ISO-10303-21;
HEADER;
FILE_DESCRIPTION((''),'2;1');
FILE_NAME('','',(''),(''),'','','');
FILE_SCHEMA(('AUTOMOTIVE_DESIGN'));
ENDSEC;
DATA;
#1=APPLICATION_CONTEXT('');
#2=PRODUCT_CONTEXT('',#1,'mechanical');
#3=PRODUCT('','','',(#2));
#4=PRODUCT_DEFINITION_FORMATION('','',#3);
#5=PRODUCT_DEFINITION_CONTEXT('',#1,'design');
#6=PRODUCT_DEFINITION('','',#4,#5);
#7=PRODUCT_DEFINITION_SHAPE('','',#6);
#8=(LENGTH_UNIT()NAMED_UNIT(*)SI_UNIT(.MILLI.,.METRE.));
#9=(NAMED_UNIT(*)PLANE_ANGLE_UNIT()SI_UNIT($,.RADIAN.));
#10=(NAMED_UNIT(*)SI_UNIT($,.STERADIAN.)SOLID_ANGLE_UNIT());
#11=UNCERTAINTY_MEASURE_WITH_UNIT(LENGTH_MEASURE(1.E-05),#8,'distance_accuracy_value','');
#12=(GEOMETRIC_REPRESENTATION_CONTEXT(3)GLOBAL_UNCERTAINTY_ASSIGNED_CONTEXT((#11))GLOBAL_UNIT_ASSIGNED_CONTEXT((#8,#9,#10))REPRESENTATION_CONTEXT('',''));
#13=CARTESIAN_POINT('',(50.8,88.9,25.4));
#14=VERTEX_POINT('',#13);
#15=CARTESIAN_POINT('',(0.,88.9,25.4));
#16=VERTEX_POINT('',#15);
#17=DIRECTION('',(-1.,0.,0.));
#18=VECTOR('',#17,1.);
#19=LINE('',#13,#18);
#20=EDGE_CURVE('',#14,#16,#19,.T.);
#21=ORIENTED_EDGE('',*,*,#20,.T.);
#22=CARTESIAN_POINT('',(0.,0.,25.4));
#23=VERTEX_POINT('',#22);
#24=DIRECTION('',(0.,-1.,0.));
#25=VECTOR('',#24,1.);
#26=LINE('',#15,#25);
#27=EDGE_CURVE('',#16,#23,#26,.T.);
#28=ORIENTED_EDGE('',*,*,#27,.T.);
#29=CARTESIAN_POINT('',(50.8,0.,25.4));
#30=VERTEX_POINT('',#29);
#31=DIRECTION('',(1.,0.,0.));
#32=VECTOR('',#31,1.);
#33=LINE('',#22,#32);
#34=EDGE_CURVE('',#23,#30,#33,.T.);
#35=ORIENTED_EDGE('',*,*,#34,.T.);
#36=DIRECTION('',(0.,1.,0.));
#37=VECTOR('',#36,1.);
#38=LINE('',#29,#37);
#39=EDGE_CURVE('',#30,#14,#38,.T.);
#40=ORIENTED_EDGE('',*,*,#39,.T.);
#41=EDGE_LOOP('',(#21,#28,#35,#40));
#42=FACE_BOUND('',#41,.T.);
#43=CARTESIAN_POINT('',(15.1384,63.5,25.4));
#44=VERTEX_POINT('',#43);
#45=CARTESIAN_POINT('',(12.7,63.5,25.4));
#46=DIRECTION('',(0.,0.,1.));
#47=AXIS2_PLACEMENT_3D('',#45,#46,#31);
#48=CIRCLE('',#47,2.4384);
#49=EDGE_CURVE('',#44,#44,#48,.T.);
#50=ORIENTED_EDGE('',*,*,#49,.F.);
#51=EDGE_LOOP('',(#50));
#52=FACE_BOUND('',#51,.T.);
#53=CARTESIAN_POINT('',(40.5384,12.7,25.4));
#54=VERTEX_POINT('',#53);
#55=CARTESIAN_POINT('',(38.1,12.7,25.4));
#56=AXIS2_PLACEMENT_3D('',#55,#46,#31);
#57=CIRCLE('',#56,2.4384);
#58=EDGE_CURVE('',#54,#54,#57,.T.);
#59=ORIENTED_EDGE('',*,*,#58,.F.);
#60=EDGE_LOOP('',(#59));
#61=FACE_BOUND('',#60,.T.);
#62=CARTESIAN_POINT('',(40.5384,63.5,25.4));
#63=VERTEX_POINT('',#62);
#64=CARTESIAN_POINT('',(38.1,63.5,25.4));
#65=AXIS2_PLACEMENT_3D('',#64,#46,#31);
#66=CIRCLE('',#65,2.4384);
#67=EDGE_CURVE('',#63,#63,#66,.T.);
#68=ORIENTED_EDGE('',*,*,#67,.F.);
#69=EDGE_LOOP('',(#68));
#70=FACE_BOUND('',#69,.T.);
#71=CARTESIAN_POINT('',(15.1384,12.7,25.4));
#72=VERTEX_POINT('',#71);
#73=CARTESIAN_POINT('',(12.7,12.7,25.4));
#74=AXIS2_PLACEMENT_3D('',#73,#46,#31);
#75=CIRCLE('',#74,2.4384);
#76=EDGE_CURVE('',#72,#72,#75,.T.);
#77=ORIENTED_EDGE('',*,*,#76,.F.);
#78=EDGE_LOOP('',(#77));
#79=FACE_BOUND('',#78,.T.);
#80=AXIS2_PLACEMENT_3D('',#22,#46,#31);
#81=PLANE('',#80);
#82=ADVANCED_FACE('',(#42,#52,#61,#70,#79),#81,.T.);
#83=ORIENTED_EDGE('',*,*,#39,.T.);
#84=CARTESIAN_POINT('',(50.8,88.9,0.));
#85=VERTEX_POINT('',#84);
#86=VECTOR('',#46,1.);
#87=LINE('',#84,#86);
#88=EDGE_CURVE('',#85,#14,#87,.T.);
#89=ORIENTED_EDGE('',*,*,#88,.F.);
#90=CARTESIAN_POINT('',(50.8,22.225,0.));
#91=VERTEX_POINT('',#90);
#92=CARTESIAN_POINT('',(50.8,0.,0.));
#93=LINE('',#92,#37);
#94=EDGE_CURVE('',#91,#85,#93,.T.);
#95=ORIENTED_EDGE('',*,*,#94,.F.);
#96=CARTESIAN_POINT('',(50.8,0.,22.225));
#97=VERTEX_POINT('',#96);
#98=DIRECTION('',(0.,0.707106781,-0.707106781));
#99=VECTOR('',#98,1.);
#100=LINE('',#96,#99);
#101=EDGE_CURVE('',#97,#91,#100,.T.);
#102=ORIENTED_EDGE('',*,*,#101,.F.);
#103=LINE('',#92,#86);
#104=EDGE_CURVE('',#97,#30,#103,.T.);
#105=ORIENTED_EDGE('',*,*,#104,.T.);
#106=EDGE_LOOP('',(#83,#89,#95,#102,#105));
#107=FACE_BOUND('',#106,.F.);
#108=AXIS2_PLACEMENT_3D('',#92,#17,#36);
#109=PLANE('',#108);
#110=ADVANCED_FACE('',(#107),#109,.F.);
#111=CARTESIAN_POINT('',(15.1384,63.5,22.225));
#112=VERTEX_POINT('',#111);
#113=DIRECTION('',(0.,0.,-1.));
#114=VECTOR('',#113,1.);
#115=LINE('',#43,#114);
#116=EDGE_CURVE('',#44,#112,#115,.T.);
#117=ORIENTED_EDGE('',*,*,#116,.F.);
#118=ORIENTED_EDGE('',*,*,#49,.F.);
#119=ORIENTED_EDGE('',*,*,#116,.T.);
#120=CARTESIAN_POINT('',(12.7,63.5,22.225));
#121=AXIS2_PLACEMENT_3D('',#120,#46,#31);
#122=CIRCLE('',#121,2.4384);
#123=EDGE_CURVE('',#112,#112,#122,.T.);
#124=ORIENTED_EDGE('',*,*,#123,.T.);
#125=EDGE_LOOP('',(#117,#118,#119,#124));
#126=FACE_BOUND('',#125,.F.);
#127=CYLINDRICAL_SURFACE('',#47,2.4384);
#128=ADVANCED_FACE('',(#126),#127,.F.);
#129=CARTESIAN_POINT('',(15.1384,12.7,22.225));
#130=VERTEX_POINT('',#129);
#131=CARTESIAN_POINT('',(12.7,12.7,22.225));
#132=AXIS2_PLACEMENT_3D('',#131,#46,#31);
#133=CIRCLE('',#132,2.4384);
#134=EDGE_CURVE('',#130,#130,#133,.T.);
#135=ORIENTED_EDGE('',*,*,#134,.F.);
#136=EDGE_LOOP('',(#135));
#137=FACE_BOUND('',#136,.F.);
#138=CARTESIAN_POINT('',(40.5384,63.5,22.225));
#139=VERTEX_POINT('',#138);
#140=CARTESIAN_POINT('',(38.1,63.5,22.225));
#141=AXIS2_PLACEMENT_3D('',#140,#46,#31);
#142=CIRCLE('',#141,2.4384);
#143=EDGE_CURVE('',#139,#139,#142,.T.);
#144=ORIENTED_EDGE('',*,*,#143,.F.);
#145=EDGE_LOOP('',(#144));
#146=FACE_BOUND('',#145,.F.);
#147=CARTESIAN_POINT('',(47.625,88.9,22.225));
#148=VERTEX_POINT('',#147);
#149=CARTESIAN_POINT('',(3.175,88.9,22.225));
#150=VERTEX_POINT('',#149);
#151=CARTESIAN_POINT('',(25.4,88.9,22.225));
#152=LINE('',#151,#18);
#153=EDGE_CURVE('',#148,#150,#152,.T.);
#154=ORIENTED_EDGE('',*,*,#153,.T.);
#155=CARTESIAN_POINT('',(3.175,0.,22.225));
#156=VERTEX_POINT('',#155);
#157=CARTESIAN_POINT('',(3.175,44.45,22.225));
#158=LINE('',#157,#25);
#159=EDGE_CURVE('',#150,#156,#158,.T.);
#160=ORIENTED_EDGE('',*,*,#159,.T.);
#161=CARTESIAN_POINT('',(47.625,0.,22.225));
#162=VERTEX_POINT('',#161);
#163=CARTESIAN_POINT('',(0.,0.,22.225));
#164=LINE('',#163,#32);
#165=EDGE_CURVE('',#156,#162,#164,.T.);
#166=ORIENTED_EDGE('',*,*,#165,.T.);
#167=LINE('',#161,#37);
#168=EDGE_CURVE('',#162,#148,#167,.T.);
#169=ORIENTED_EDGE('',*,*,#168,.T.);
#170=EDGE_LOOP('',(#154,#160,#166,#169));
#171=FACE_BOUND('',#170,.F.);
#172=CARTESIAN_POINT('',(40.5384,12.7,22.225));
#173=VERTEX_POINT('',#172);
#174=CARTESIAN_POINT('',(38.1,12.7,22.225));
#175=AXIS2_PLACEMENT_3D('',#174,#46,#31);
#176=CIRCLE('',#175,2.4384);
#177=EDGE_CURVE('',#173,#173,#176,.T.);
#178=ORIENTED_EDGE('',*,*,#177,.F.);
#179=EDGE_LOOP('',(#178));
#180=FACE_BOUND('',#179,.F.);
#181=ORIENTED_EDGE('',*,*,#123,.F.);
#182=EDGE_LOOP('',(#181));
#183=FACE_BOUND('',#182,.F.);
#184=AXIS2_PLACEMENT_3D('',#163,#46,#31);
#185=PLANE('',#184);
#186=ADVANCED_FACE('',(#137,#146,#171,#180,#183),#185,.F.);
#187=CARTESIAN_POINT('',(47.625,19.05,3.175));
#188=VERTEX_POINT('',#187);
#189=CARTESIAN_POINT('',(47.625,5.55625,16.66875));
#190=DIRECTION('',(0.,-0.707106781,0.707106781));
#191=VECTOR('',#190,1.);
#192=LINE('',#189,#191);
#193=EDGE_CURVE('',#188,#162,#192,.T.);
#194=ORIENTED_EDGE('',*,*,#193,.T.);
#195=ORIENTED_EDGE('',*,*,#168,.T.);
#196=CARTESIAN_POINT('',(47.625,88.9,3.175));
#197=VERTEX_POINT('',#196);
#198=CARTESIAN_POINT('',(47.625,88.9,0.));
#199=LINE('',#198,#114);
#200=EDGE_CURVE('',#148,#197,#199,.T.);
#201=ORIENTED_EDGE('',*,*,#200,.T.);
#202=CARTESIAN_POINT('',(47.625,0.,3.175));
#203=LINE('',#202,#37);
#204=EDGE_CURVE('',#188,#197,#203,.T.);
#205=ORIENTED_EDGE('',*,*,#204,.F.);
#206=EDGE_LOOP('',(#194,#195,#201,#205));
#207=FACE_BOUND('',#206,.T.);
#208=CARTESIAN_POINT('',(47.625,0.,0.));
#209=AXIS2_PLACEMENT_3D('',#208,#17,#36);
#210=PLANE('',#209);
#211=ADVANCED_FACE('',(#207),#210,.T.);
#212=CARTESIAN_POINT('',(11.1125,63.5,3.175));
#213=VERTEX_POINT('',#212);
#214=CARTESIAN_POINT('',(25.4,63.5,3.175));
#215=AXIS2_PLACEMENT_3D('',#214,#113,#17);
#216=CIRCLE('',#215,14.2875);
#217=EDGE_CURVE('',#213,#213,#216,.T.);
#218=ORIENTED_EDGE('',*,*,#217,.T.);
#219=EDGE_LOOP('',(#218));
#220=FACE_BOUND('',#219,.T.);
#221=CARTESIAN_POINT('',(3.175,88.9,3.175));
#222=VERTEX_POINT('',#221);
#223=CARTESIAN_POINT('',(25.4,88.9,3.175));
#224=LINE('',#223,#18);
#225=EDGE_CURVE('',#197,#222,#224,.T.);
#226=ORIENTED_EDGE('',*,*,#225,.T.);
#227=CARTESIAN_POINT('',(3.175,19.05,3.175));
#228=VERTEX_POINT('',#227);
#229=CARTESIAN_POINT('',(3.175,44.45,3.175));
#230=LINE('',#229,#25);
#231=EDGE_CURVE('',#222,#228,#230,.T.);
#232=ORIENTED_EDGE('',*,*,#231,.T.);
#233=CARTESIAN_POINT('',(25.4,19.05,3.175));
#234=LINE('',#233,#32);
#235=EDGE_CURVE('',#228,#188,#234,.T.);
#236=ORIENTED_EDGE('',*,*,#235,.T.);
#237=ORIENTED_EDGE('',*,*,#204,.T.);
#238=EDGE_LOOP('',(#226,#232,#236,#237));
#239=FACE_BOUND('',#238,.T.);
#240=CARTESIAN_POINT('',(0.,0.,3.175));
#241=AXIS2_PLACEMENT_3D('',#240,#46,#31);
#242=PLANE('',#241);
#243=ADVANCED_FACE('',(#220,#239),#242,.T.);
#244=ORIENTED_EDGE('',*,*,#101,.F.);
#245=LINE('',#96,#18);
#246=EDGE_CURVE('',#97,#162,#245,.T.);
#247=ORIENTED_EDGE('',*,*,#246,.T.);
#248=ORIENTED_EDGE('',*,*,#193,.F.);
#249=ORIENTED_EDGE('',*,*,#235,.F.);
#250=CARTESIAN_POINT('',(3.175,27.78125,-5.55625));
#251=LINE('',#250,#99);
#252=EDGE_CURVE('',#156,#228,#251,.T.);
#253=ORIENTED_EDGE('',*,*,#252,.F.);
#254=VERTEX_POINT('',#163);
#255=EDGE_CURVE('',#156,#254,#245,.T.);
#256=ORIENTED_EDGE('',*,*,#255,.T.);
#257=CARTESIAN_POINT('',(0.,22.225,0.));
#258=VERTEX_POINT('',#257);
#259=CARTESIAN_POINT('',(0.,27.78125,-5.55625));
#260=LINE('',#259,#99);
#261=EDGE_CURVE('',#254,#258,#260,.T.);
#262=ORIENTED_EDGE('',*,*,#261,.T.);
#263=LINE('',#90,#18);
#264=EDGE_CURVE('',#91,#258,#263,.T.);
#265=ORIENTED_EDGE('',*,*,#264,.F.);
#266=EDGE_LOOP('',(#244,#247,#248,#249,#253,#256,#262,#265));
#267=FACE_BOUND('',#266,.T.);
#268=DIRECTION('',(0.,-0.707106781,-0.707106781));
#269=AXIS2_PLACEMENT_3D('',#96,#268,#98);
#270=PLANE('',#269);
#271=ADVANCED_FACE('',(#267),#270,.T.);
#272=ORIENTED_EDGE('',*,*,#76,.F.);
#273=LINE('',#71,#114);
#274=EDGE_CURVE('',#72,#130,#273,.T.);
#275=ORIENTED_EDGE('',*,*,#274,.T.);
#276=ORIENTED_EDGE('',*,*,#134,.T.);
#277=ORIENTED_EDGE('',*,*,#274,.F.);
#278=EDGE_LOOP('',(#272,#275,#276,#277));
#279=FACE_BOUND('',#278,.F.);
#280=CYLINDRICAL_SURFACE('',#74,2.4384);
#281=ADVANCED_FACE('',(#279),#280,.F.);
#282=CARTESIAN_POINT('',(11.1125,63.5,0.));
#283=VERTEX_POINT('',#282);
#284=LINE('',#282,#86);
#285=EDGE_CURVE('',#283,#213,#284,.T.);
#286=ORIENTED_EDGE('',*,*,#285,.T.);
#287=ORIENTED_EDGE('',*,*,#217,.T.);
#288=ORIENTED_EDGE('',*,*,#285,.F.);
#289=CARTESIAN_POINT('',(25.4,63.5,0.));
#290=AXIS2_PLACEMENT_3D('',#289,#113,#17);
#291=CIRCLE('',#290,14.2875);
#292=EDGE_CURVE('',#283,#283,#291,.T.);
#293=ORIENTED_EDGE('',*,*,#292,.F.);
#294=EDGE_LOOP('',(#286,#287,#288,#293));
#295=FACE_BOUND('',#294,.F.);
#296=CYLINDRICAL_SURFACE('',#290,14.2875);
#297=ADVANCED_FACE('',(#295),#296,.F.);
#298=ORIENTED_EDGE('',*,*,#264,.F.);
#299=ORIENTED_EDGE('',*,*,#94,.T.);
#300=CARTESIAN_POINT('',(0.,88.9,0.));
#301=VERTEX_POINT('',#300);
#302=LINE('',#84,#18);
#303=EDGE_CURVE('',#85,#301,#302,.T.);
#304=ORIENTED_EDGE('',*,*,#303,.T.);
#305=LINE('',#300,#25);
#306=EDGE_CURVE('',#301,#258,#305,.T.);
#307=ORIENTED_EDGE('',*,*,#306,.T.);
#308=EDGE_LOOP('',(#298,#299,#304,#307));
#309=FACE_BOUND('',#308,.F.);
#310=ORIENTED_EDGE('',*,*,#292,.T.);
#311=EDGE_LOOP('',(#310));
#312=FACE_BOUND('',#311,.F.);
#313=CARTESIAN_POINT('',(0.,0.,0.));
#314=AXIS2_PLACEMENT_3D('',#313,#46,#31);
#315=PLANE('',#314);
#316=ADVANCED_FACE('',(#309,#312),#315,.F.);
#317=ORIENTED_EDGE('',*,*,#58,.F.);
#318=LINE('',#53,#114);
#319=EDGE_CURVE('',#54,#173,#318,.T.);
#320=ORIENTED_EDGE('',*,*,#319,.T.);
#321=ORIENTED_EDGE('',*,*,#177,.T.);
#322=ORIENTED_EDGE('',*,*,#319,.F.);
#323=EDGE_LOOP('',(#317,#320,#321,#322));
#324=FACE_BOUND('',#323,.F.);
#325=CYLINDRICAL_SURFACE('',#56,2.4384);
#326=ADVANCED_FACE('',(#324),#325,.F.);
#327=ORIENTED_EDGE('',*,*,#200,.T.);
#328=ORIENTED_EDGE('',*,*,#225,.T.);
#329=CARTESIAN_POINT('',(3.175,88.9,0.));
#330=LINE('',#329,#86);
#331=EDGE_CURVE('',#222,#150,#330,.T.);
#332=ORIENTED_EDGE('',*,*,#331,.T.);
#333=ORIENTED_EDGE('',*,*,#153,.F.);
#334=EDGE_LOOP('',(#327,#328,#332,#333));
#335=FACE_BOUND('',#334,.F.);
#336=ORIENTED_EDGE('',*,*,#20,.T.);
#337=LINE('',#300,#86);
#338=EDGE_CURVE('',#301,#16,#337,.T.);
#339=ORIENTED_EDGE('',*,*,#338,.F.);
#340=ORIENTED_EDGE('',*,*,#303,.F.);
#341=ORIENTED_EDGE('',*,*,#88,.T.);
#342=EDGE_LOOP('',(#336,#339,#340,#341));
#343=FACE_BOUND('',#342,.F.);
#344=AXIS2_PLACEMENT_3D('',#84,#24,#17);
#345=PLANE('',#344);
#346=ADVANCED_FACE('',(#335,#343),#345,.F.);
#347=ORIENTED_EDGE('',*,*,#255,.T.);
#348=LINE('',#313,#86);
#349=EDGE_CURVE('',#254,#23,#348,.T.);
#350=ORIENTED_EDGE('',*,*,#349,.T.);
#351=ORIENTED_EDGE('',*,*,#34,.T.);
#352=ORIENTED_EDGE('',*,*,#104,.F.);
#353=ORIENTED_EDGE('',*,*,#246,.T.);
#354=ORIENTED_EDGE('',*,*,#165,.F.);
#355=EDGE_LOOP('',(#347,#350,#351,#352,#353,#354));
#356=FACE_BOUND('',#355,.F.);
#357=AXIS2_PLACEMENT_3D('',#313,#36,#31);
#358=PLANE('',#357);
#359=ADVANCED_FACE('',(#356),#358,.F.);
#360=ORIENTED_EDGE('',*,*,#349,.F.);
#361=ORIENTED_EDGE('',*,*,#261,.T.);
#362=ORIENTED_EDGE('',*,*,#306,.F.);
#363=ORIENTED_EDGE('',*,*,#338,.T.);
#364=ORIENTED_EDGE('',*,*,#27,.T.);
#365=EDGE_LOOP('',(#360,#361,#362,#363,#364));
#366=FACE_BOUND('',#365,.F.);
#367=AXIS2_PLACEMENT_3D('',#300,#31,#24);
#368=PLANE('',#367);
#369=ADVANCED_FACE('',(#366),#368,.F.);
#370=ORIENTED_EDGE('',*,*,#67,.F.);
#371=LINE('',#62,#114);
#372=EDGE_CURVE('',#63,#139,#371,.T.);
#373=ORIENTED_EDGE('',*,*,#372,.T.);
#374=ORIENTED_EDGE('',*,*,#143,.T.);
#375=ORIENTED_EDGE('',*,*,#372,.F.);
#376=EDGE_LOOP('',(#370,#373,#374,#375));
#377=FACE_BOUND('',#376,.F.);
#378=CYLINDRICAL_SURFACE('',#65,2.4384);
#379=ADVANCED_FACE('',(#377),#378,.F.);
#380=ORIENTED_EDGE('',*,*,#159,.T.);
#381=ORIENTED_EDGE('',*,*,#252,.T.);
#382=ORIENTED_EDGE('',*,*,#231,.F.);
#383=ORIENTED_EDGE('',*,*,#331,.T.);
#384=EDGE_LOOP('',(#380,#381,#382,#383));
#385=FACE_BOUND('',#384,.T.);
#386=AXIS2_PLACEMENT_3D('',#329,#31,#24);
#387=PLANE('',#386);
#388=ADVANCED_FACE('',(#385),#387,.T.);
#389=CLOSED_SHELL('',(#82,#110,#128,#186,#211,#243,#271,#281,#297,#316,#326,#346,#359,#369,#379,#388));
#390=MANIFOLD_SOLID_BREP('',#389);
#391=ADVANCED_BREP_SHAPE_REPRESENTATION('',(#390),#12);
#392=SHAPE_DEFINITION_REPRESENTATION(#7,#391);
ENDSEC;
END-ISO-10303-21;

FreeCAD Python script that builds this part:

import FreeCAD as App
import Part
import Sketcher
Q = App.Units.Quantity


def faces_at(feature, points):
    """Names of the faces that lie closest to the given points."""
    faces = feature.Shape.Faces
    near = lambda p: min(range(len(faces)), key=lambda i: faces[i].distToShape(Part.Vertex(*p))[0])
    return sorted({f"Face{near(p) + 1}" for p in points})


def add_polygon(sketch, points):
    """Adds a closed chain of lines whose ends are joined by coincident constraints."""
    first, n = sketch.GeometryCount, len(points)
    for a, b in zip(points, points[1:] + points[:1]):
        sketch.addGeometry(Part.LineSegment(App.Vector(*a, 0), App.Vector(*b, 0)), False)
    for i in range(n):
        sketch.addConstraint(Sketcher.Constraint("Coincident", first + i, 2, first + (i + 1) % n, 1))

doc = App.newDocument("Part")
body = doc.addObject("PartDesign::Body", "Body")

# Sketch on XY plane
sketch1 = doc.addObject("Sketcher::SketchObject", "Sketch")
body.addObject(sketch1)
sketch1.AttachmentSupport = (doc.XY_Plane, [""])
sketch1.MapMode = "FlatFace"
add_polygon(sketch1, [(0, 88.9), (0, 0), (50.8, 0), (50.8, 88.9)])  # lines 0-3
sketch1.addConstraint([
    Sketcher.Constraint("Vertical", 0),
    Sketcher.Constraint("Horizontal", 1),
    Sketcher.Constraint("Vertical", 2),
    Sketcher.Constraint("Horizontal", 3),
    Sketcher.Constraint("Coincident", 0, 2, -1, 1),
    Sketcher.Constraint("DistanceX", 1, 1, 1, 2, Q("2 in")),
    Sketcher.Constraint("DistanceY", 0, 2, 0, 1, Q("3.5 in")),
])
pad1 = doc.addObject("PartDesign::Pad", "Pad")
body.addObject(pad1)
pad1.Profile = sketch1
pad1.Length = Q("1 in")
doc.recompute()

thickness = doc.addObject("PartDesign::Thickness", "Thickness")
body.addObject(thickness)
thickness.Base = (pad1, faces_at(pad1, [(33.867, 88.9, 8.467), (16.933, 0, 16.933)]))
thickness.Value = Q("0.125 in")
thickness.Reversed = True
thickness.Join = "Intersection"

# Sketch on XY plane
sketch2 = doc.addObject("Sketcher::SketchObject", "Sketch001")
body.addObject(sketch2)
sketch2.AttachmentSupport = (doc.XY_Plane, [""])
sketch2.MapMode = "FlatFace"
sketch2.AttachmentOffset = App.Placement(App.Vector(0, 0, 1 * 25.4), App.Rotation())
sketch2.addGeometry([
    Part.Circle(App.Vector(12.7, 12.7, 0), App.Vector(0, 0, 1), 2.4384),
    Part.Circle(App.Vector(38.1, 12.7, 0), App.Vector(0, 0, 1), 2.4384),
    Part.Circle(App.Vector(38.1, 63.5, 0), App.Vector(0, 0, 1), 2.4384),
    Part.Circle(App.Vector(12.7, 63.5, 0), App.Vector(0, 0, 1), 2.4384),
], False)
sketch2.addConstraint([
    Sketcher.Constraint("Equal", 0, 1),
    Sketcher.Constraint("Equal", 1, 2),
    Sketcher.Constraint("Equal", 2, 3),
    Sketcher.Constraint("Horizontal", 0, 3, 1, 3),
    Sketcher.Constraint("Horizontal", 2, 3, 3, 3),
    Sketcher.Constraint("Vertical", 1, 3, 2, 3),
    Sketcher.Constraint("Vertical", 0, 3, 3, 3),
    Sketcher.Constraint("Diameter", 0, Q("0.192 in")),
    Sketcher.Constraint("DistanceX", 0, 3, 1, 3, Q("1 in")),
    Sketcher.Constraint("DistanceY", 1, 3, 2, 3, Q("2 in")),
    Sketcher.Constraint("DistanceX", -1, 1, 0, 3, Q("0.5 in")),
    Sketcher.Constraint("DistanceY", -1, 1, 0, 3, Q("0.5 in")),
])
pocket1 = doc.addObject("PartDesign::Pocket", "Pocket")
body.addObject(pocket1)
pocket1.Profile = sketch2
pocket1.Type = "UpToFirst"

# Sketch on YZ plane
sketch3 = doc.addObject("Sketcher::SketchObject", "Sketch002")
body.addObject(sketch3)
sketch3.AttachmentSupport = (doc.YZ_Plane, [""])
sketch3.MapMode = "FlatFace"
sketch3.AttachmentOffset = App.Placement(App.Vector(0, 0, 2 * 25.4), App.Rotation())
add_polygon(sketch3, [(0, 22.225), (0, 0), (22.225, 0)])  # lines 0-2
sketch3.addConstraint([
    Sketcher.Constraint("Vertical", 0),
    Sketcher.Constraint("Horizontal", 1),
    Sketcher.Constraint("Coincident", 0, 2, -1, 1),
    Sketcher.Constraint("Equal", 1, 0),
    Sketcher.Constraint("DistanceX", 1, 1, 1, 2, Q("0.875 in")),
])
pocket2 = doc.addObject("PartDesign::Pocket", "Pocket001")
body.addObject(pocket2)
pocket2.Profile = sketch3
pocket2.Type = "ThroughAll"

# Sketch on XY plane
sketch4 = doc.addObject("Sketcher::SketchObject", "Sketch003")
body.addObject(sketch4)
sketch4.AttachmentSupport = (doc.XY_Plane, [""])
sketch4.MapMode = "FlatFace"
sketch4.addGeometry(Part.Circle(App.Vector(25.4, 63.5, 0), App.Vector(0, 0, 1), 14.2875), False)
sketch4.addConstraint([
    Sketcher.Constraint("Diameter", 0, Q("1.125 in")),
    Sketcher.Constraint("DistanceX", -1, 1, 0, 3, Q("1 in")),
    Sketcher.Constraint("DistanceY", -1, 1, 0, 3, Q("2.5 in")),
])
pocket3 = doc.addObject("PartDesign::Pocket", "Pocket002")
body.addObject(pocket3)
pocket3.Profile = sketch4
pocket3.Type = "UpToFirst"
pocket3.Reversed = True

doc.recompute()
